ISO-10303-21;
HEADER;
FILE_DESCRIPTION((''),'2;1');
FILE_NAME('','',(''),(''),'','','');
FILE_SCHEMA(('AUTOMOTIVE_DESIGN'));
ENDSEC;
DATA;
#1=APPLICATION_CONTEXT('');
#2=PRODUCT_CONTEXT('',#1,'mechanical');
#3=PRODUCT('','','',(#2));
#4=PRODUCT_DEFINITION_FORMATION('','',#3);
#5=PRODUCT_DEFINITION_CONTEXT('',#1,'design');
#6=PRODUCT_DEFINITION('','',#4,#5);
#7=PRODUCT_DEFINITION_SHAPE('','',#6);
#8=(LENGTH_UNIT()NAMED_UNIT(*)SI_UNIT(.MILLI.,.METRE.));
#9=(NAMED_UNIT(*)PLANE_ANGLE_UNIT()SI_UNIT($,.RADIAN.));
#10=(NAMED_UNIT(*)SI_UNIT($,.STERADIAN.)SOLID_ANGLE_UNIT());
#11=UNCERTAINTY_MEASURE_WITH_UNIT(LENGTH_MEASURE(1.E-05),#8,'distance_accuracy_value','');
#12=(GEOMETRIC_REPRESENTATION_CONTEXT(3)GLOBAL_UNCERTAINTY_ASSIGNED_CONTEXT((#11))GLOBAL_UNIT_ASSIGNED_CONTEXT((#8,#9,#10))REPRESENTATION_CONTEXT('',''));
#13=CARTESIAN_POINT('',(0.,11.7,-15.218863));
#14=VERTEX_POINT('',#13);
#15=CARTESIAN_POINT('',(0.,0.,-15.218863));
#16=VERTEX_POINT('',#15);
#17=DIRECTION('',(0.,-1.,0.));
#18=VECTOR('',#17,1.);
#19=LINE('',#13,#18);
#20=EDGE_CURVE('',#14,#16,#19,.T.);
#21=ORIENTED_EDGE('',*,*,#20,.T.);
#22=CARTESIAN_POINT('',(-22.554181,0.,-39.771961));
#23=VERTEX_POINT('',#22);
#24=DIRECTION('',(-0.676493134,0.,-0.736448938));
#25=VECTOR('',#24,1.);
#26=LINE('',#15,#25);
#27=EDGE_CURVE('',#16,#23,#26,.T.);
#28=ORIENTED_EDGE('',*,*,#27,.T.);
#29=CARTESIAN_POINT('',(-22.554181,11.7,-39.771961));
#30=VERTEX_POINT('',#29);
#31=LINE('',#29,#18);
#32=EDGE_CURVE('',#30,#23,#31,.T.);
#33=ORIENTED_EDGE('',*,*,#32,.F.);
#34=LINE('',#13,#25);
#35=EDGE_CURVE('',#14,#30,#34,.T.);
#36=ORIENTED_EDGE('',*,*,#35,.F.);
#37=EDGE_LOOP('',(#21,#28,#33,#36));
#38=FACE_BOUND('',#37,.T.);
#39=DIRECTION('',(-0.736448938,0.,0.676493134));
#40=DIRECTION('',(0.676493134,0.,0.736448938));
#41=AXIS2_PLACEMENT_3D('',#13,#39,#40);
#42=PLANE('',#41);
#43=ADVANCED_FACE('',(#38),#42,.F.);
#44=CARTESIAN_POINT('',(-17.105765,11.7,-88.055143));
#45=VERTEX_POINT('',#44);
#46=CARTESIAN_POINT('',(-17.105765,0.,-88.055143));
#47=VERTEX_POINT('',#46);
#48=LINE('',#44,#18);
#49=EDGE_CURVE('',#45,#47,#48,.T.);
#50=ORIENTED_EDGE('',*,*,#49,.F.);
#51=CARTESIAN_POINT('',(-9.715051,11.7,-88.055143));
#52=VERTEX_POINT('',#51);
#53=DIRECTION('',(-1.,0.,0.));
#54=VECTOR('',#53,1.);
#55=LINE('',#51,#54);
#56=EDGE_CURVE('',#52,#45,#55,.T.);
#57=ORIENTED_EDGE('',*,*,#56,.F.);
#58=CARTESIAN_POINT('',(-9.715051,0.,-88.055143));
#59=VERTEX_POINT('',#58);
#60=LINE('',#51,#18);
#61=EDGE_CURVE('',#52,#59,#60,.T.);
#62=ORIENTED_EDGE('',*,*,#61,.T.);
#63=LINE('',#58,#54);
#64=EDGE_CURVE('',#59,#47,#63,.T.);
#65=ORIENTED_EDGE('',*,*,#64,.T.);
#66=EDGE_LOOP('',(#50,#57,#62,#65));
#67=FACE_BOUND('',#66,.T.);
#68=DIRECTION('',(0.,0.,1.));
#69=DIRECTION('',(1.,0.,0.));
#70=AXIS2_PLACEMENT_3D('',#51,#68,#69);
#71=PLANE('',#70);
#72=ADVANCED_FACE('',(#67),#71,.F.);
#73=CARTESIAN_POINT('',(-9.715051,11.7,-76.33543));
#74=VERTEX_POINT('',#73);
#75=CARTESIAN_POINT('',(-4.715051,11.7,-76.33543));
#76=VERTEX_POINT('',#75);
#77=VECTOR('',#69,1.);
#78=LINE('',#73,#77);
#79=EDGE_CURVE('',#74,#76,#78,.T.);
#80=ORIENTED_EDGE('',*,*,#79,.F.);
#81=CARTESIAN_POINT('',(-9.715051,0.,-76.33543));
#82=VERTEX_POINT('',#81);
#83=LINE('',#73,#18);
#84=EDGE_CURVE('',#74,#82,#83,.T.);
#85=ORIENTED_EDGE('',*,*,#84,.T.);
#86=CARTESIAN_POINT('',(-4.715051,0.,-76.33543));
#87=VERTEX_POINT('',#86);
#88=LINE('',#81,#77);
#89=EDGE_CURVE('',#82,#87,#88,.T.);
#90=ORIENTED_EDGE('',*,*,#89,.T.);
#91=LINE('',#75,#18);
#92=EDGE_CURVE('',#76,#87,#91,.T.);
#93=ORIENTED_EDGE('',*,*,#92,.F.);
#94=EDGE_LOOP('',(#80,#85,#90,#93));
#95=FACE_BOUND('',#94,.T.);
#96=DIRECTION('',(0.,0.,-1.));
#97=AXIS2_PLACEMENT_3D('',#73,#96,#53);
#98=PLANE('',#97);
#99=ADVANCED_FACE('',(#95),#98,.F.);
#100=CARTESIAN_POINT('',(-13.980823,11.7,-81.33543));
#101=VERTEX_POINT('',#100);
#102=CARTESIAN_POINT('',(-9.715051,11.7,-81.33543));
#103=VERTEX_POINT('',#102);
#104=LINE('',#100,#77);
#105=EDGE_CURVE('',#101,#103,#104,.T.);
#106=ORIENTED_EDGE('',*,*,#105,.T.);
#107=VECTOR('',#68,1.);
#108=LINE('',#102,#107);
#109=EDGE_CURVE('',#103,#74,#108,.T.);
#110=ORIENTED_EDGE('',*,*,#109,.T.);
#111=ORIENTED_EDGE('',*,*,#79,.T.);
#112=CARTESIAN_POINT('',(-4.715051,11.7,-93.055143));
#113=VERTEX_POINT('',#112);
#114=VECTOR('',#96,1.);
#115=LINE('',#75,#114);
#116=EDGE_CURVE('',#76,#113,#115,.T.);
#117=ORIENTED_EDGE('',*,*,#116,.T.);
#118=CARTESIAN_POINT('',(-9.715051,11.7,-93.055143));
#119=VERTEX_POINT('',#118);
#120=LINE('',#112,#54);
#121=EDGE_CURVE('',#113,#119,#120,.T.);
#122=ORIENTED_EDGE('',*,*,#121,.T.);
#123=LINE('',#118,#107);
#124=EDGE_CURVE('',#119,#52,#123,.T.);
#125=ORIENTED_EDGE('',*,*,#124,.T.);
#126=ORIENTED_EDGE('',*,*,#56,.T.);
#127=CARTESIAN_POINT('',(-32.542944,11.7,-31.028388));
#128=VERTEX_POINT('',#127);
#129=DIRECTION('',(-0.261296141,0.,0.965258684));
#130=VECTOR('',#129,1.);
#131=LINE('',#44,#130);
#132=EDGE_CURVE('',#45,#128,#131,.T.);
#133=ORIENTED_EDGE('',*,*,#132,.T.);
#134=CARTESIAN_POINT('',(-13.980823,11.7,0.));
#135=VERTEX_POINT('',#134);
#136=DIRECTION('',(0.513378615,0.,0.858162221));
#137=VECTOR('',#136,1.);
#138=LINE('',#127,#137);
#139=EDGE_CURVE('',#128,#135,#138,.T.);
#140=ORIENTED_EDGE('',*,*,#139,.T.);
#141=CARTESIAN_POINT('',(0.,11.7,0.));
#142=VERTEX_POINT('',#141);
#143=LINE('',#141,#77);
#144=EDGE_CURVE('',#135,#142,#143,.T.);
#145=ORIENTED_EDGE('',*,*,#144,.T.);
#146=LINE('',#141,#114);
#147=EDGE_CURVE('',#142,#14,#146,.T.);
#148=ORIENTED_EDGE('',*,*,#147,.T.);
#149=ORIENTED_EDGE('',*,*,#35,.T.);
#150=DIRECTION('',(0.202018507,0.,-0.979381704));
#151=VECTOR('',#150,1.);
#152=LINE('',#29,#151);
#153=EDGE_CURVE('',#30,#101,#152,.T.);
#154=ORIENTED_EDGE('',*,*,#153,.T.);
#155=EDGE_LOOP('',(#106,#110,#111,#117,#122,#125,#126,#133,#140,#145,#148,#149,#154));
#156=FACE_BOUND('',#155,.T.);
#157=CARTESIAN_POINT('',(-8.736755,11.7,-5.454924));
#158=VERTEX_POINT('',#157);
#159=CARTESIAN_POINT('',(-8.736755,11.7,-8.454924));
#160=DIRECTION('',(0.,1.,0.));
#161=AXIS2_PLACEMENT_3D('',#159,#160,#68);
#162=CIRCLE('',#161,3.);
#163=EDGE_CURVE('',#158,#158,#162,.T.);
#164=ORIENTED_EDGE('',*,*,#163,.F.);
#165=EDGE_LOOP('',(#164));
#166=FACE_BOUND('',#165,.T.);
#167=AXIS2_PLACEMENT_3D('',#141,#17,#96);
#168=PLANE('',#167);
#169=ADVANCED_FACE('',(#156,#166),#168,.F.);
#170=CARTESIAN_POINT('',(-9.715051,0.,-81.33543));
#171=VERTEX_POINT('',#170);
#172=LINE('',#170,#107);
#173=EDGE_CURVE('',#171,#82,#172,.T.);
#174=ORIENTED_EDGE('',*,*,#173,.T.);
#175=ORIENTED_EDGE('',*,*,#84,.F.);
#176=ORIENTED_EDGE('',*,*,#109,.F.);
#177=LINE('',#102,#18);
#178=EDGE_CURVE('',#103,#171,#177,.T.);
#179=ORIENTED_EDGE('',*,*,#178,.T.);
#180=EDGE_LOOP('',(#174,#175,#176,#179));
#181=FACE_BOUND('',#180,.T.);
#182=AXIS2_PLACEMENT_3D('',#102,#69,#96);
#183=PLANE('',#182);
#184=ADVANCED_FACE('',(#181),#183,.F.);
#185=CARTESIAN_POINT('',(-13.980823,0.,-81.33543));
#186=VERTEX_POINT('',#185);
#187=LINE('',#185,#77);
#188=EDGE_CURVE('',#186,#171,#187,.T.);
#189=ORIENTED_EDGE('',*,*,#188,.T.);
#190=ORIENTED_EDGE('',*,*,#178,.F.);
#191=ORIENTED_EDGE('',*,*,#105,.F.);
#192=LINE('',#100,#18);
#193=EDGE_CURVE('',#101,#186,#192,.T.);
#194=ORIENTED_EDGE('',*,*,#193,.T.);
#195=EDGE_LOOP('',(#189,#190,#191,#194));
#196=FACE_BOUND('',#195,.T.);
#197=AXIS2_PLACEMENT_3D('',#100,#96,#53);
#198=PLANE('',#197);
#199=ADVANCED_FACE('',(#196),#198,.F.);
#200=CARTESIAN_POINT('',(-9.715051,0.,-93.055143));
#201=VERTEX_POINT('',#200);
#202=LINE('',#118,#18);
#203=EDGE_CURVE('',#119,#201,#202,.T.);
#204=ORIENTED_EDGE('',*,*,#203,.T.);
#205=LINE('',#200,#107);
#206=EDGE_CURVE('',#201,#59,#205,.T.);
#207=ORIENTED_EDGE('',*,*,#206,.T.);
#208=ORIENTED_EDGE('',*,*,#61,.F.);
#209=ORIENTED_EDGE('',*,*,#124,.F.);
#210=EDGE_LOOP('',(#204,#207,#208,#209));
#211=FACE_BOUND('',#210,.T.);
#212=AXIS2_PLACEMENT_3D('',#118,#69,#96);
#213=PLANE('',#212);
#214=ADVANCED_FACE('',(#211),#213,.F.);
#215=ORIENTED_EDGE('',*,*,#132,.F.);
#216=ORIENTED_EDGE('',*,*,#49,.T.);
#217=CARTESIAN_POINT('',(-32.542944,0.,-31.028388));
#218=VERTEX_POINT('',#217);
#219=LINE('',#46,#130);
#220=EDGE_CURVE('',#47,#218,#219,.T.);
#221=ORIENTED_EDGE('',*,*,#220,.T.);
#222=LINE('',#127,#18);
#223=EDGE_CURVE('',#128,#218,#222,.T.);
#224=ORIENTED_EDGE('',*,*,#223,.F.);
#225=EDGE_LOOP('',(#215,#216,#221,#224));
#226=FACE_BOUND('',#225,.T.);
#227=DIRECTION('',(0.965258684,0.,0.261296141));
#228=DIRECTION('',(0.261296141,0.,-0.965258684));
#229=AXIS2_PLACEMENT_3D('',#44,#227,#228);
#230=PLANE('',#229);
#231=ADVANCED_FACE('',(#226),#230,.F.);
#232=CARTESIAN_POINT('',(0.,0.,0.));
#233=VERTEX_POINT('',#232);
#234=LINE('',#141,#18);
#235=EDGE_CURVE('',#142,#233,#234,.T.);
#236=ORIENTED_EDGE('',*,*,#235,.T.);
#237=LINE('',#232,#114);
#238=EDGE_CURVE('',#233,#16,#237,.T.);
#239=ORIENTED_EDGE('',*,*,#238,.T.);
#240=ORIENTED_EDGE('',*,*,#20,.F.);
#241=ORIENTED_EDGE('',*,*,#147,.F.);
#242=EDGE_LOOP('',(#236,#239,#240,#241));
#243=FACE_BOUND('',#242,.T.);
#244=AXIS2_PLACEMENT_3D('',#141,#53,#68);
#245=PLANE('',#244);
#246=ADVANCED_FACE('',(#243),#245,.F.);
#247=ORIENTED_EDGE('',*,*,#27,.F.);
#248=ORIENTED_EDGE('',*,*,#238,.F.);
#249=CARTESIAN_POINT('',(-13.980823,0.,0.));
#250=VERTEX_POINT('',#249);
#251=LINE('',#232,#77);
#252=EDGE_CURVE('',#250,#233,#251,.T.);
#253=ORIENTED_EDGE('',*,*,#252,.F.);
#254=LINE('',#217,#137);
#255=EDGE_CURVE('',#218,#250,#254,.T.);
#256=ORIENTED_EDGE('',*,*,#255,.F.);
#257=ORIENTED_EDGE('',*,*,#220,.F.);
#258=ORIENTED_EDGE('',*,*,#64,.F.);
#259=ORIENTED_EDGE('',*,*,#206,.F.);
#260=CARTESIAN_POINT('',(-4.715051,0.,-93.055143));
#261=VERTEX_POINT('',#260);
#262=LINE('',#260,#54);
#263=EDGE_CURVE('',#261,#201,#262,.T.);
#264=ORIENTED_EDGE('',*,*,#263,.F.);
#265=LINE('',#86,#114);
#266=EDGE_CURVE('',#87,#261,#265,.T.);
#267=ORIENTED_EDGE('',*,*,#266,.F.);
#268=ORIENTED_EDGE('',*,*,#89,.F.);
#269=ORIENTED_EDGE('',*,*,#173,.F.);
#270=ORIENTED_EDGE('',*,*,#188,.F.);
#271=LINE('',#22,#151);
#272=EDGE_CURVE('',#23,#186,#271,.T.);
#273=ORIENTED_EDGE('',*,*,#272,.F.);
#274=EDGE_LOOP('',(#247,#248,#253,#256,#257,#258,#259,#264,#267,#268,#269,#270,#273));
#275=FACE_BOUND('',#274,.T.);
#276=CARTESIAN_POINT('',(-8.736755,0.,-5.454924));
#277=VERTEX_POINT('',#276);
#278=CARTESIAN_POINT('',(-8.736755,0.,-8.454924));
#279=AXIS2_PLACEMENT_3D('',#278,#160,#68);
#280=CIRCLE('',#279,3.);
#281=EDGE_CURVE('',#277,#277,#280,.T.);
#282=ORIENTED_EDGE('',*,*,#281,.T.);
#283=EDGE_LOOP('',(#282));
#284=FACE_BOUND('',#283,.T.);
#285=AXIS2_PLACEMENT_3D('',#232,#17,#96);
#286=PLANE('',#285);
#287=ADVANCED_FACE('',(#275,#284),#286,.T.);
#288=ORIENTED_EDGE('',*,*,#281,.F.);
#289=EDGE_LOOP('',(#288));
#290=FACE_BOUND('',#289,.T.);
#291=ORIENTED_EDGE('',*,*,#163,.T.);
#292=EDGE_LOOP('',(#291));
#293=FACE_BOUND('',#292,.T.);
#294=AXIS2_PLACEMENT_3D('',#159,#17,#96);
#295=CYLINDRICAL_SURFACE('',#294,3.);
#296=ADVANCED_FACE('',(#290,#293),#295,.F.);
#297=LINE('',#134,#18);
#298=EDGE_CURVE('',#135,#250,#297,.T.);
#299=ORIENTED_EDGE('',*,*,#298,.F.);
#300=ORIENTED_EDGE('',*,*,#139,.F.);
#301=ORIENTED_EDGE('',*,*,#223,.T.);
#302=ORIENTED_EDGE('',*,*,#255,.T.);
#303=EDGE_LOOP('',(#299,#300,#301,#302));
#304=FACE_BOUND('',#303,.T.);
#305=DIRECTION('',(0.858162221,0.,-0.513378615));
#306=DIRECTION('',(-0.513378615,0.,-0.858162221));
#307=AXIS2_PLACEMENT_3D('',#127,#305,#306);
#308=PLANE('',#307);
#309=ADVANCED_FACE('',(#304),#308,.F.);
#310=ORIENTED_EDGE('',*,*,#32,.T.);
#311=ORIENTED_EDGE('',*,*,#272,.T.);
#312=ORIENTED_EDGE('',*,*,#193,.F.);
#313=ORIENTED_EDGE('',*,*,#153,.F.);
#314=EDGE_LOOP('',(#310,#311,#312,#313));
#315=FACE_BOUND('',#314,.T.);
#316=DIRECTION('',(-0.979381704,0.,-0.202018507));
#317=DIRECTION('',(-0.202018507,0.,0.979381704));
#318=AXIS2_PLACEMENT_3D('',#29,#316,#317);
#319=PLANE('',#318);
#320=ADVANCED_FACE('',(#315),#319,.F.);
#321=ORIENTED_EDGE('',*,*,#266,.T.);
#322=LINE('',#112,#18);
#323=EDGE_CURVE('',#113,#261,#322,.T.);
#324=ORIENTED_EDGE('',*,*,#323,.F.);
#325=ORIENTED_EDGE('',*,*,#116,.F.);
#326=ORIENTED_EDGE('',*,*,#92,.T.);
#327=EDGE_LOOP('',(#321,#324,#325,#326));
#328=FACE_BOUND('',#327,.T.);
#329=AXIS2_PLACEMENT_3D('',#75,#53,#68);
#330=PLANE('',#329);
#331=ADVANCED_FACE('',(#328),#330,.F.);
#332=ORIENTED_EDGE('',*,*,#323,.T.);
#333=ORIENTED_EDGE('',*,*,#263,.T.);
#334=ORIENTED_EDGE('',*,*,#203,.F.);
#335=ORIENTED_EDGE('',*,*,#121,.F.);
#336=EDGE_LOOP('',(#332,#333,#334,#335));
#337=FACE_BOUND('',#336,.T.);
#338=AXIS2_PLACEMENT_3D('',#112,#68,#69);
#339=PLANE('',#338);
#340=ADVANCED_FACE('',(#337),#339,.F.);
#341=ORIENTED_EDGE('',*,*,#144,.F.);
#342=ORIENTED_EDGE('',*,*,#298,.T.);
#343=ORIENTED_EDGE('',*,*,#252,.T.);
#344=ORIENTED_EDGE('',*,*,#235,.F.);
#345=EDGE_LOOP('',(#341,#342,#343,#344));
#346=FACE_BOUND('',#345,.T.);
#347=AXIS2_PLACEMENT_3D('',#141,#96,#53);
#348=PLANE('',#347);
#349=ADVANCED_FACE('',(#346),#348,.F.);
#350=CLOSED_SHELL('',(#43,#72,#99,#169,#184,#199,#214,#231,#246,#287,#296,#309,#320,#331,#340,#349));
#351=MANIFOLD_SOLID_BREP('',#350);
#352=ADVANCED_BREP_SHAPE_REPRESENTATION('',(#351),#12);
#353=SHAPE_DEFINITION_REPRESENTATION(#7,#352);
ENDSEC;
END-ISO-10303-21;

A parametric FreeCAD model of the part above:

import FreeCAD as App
import Part
import Sketcher
Q = App.Units.Quantity

doc = App.newDocument("Part")
body = doc.addObject("PartDesign::Body", "Body")

# Sketch on XZ plane
sketch1 = body.newObject("Sketcher::SketchObject", "Sketch")
sketch1.AttachmentSupport = (doc.getObject("XZ_Plane"), [""])
sketch1.MapMode = "FlatFace"
sketch1.addGeometry([
    Part.LineSegment(App.Vector(-14, 0, 0), App.Vector(0, 0, 0)),  # 0
    Part.LineSegment(App.Vector(0, 0, 0), App.Vector(0, -15.2, 0)),  # 1
    Part.LineSegment(App.Vector(0, -15.2, 0), App.Vector(-22.6, -39.8, 0)),  # 2
    Part.LineSegment(App.Vector(-22.6, -39.8, 0), App.Vector(-14, -81.3, 0)),  # 3
    Part.LineSegment(App.Vector(-14, -81.3, 0), App.Vector(-9.7, -81.3, 0)),  # 4
    Part.LineSegment(App.Vector(-9.7, -81.3, 0), App.Vector(-9.7, -76.3, 0)),  # 5
    Part.LineSegment(App.Vector(-9.7, -76.3, 0), App.Vector(-4.7, -76.3, 0)),  # 6
    Part.LineSegment(App.Vector(-4.7, -76.3, 0), App.Vector(-4.7, -93.1, 0)),  # 7
    Part.LineSegment(App.Vector(-4.7, -93.1, 0), App.Vector(-9.7, -93.1, 0)),  # 8
    Part.LineSegment(App.Vector(-9.7, -93.1, 0), App.Vector(-9.7, -88.1, 0)),  # 9
    Part.LineSegment(App.Vector(-9.7, -88.1, 0), App.Vector(-17.1, -88.1, 0)),  # 10
    Part.LineSegment(App.Vector(-17.1, -88.1, 0), App.Vector(-32.5, -31, 0)),  # 11
    Part.LineSegment(App.Vector(-32.5, -31, 0), App.Vector(-14, 0, 0)),  # 12
    Part.Circle(App.Vector(-8.7, -8.5, 0), App.Vector(0, 0, 1), 3),  # 13
], False)
sketch1.addConstraint([
    Sketcher.Constraint("Coincident", 0, 2, 1, 1),
    Sketcher.Constraint("Coincident", 1, 2, 2, 1),
    Sketcher.Constraint("Coincident", 2, 2, 3, 1),
    Sketcher.Constraint("Coincident", 3, 2, 4, 1),
    Sketcher.Constraint("Coincident", 4, 2, 5, 1),
    Sketcher.Constraint("Coincident", 5, 2, 6, 1),
    Sketcher.Constraint("Coincident", 6, 2, 7, 1),
    Sketcher.Constraint("Coincident", 7, 2, 8, 1),
    Sketcher.Constraint("Coincident", 8, 2, 9, 1),
    Sketcher.Constraint("Coincident", 9, 2, 10, 1),
    Sketcher.Constraint("Coincident", 10, 2, 11, 1),
    Sketcher.Constraint("Coincident", 11, 2, 12, 1),
    Sketcher.Constraint("Coincident", 12, 2, 0, 1),
    Sketcher.Constraint("Horizontal", 0),
    Sketcher.Constraint("Vertical", 1),
    Sketcher.Constraint("Horizontal", 4),
    Sketcher.Constraint("Vertical", 5),
    Sketcher.Constraint("Horizontal", 6),
    Sketcher.Constraint("Vertical", 7),
    Sketcher.Constraint("Horizontal", 8),
    Sketcher.Constraint("Vertical", 9),
    Sketcher.Constraint("Horizontal", 10),
    Sketcher.Constraint("Coincident", 0, 2, -1, 1),
    Sketcher.Constraint("Vertical", 5, 2, 8, 2),
    Sketcher.Constraint("Vertical", 3, 2, 12, 2),
    Sketcher.Constraint("Equal", 8, 5),
    Sketcher.Constraint("Equal", 5, 9),
    Sketcher.Constraint("Diameter", 13, Q("6 mm")),
    Sketcher.Constraint("DistanceX", 6, 1, 6, 2, Q("5 mm")),
    Sketcher.Constraint("DistanceY", 2, 2, 1, 2, Q("24.553098 mm")),
    Sketcher.Constraint("Distance", 2, Q("33.339852 mm")),
    Sketcher.Constraint("DistanceX", 0, 1, 0, 2, Q("13.980823 mm")),
    Sketcher.Constraint("DistanceX", 4, 1, 4, 2, Q("4.265772 mm")),
    Sketcher.Constraint("DistanceX", 10, 2, 10, 1, Q("7.390714 mm")),
    Sketcher.Constraint("DistanceY", 1, 2, 1, 1, Q("15.218863 mm")),
    Sketcher.Constraint("DistanceY", 7, 2, 7, 1, Q("16.719713 mm")),
    Sketcher.Constraint("DistanceY", 3, 2, -1, 1, Q("81.33543 mm")),
    Sketcher.Constraint("DistanceY", 1, 2, 13, 3, Q("6.763939 mm")),
    Sketcher.Constraint("DistanceX", 3, 2, 13, 3, Q("5.244068 mm")),
    Sketcher.Constraint("DistanceX", 11, 2, 13, 3, Q("23.806189 mm")),
    Sketcher.Constraint("DistanceY", 5, 2, 11, 2, Q("45.307042 mm")),
])
pad1 = body.newObject("PartDesign::Pad", "Pad")
pad1.Profile = sketch1
pad1.Length = 11.7
pad1.Reversed = True

doc.recompute()
